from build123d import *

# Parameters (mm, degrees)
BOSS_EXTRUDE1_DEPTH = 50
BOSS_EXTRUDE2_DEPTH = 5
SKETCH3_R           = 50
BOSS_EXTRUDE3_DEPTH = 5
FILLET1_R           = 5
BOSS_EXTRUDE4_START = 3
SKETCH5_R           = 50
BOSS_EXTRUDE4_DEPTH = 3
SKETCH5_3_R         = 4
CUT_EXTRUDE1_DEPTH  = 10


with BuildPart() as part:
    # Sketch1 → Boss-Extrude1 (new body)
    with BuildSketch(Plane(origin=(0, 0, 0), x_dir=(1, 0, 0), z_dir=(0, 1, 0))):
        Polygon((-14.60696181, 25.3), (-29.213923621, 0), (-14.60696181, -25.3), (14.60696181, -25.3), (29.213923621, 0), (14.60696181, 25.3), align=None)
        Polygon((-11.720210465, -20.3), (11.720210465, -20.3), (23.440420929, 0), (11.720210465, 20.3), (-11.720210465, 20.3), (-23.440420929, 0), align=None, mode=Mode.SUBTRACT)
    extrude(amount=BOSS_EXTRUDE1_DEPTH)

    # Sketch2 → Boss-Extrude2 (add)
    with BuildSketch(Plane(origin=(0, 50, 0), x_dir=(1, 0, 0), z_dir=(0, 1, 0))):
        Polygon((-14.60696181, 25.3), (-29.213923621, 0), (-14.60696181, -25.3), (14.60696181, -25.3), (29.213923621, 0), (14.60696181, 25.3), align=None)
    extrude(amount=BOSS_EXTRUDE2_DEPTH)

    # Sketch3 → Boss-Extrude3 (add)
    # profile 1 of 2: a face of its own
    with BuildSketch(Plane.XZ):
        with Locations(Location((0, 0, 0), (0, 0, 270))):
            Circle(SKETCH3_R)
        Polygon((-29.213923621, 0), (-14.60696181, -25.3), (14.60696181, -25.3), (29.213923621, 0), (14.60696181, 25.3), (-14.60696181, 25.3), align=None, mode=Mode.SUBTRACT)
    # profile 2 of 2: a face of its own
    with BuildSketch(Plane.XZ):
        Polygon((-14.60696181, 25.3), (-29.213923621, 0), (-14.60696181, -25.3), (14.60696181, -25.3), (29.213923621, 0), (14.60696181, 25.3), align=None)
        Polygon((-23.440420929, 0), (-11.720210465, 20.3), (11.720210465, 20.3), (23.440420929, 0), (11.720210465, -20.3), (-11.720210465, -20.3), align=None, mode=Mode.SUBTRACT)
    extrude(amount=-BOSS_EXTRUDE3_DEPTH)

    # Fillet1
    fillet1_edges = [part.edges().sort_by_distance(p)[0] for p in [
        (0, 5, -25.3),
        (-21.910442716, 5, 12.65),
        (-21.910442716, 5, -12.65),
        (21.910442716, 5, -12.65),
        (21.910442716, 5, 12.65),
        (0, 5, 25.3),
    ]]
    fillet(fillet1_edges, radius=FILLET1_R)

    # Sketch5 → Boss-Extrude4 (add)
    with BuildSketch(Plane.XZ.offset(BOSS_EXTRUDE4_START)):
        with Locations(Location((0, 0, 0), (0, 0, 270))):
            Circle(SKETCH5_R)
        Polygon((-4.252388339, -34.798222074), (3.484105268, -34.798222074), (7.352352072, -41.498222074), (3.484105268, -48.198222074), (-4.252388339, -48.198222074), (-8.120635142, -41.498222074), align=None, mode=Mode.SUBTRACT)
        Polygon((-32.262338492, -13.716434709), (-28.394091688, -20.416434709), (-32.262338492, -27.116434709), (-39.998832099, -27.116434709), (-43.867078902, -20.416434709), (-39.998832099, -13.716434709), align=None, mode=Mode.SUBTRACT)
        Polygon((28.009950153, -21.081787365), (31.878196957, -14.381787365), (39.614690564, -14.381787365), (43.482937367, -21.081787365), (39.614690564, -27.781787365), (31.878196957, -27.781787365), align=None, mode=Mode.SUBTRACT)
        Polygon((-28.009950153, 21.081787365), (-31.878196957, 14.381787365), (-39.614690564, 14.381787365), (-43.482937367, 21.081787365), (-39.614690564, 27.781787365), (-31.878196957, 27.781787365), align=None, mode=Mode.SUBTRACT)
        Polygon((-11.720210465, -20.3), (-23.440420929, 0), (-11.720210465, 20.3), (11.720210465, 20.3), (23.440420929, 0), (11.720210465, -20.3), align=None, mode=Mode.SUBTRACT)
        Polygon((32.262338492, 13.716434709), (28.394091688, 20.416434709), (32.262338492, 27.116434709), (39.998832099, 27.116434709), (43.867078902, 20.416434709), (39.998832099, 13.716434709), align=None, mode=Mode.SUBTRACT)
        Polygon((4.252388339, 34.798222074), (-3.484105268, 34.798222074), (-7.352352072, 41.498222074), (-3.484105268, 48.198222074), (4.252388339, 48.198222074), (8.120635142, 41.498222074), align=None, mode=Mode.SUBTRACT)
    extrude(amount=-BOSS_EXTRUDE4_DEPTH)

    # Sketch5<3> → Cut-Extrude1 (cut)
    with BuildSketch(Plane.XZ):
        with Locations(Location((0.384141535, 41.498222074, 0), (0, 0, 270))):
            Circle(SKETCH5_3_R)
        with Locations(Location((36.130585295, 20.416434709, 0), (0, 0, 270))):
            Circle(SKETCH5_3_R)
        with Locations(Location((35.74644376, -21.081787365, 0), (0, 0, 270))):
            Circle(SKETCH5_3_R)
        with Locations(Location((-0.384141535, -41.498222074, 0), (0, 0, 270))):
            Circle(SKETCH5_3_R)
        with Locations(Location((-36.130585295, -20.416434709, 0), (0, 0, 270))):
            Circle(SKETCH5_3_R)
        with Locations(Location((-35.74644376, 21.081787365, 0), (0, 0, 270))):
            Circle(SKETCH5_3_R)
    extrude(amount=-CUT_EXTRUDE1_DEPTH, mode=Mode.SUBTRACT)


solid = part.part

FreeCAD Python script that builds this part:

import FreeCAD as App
import Part
import Sketcher

V = App.Vector
Q = App.Units.Quantity


def edges_at(feature, points):
    """Names of the edges that pass closest to the given points."""
    edges = feature.Shape.Edges
    near = lambda p: min(range(len(edges)), key=lambda i: edges[i].distToShape(Part.Vertex(*p))[0])
    return sorted({f"Edge{near(p) + 1}" for p in points})


def add_polygon(sketch, points):
    """Adds a closed chain of lines whose ends are joined by coincident constraints."""
    first, n = sketch.GeometryCount, len(points)
    for a, b in zip(points, points[1:] + points[:1]):
        sketch.addGeometry(Part.LineSegment(App.Vector(*a, 0), App.Vector(*b, 0)), False)
    for i in range(n):
        sketch.addConstraint(Sketcher.Constraint("Coincident", first + i, 2, first + (i + 1) % n, 1))

doc = App.newDocument("Part")
body = doc.addObject("PartDesign::Body", "Body")

# Sketch on XZ plane
sketch1 = doc.addObject("Sketcher::SketchObject", "Sketch")
body.addObject(sketch1)
sketch1.AttachmentSupport = (doc.XZ_Plane, [""])
sketch1.MapMode = "FlatFace"
add_polygon(sketch1, [(-14.606962, -25.3), (-29.213924, 0), (-14.606962, 25.3), (14.606962, 25.3), (29.213924, 0), (14.606962, -25.3)])  # lines 0-5
add_polygon(sketch1, [(11.72021, 20.3), (-11.72021, 20.3), (-23.440421, 0), (-11.72021, -20.3), (11.72021, -20.3), (23.440421, 0)])  # lines 6-11
sketch1.addConstraint([
    Sketcher.Constraint("Horizontal", 2),
    Sketcher.Constraint("Horizontal", 5),
    Sketcher.Constraint("Horizontal", 6),
    Sketcher.Constraint("Horizontal", 9),
    Sketcher.Constraint("Symmetric", 0, 2, 3, 2, -1, 1),
    Sketcher.Constraint("Symmetric", 1, 2, 4, 2, -1, 1),
    Sketcher.Constraint("Symmetric", 6, 2, 9, 2, -1, 1),
    Sketcher.Constraint("Symmetric", 7, 2, 10, 2, -1, 1),
    Sketcher.Constraint("PointOnObject", 0, 2, -1),
    Sketcher.Constraint("PointOnObject", 7, 2, -1),
    Sketcher.Constraint("Parallel", 0, 3),
    Sketcher.Constraint("Parallel", 4, 7),
    Sketcher.Constraint("Parallel", 3, 8),
    Sketcher.Constraint("Parallel", 8, 11),
    Sketcher.Constraint("Vertical", 2, 2, 4, 2),
    Sketcher.Constraint("Angle", 0, Q("120 deg")),
    Sketcher.Constraint("DistanceY", 6, 2, 1, 2, Q("5 mm")),
    Sketcher.Constraint("DistanceY", -1, 1, 1, 2, Q("25.3 mm")),
    Sketcher.Constraint("DistanceX", 6, 2, 6, 1, Q("23.440421 mm")),
    Sketcher.Constraint("DistanceX", 2, 1, 2, 2, Q("29.213924 mm")),
])
pad1 = doc.addObject("PartDesign::Pad", "Pad")
body.addObject(pad1)
pad1.Profile = sketch1
pad1.Length = 50
pad1.Reversed = True

# Sketch on XZ plane
sketch2 = doc.addObject("Sketcher::SketchObject", "Sketch001")
body.addObject(sketch2)
sketch2.AttachmentSupport = (doc.XZ_Plane, [""])
sketch2.MapMode = "FlatFace"
sketch2.AttachmentOffset = App.Placement(V(0, 0, -50), App.Rotation())
add_polygon(sketch2, [(-14.606962, -25.3), (-29.213924, 0), (-14.606962, 25.3), (14.606962, 25.3), (29.213924, 0), (14.606962, -25.3)])  # lines 0-5
sketch2.addConstraint([
    Sketcher.Constraint("Horizontal", 2),
    Sketcher.Constraint("Horizontal", 5),
    Sketcher.Constraint("Symmetric", 0, 2, 3, 2, -1, 1),
    Sketcher.Constraint("Symmetric", 1, 2, 4, 2, -1, 1),
    Sketcher.Constraint("PointOnObject", 0, 2, -1),
    Sketcher.Constraint("Parallel", 0, 3),
    Sketcher.Constraint("Vertical", 2, 2, 4, 2),
    Sketcher.Constraint("Angle", 0, Q("120 deg")),
    Sketcher.Constraint("DistanceY", -1, 1, 1, 2, Q("25.3 mm")),
    Sketcher.Constraint("DistanceX", 2, 1, 2, 2, Q("29.213924 mm")),
])
pad2 = doc.addObject("PartDesign::Pad", "Pad001")
body.addObject(pad2)
pad2.Profile = sketch2
pad2.Length = 5
pad2.Reversed = True

# Sketch on XZ plane
sketch3 = doc.addObject("Sketcher::SketchObject", "Sketch002")
body.addObject(sketch3)
sketch3.AttachmentSupport = (doc.XZ_Plane, [""])
sketch3.MapMode = "FlatFace"
sketch3.addGeometry(Part.Circle(V(0, 0, 0), V(0, 0, 1), 50), False)  # 0
add_polygon(sketch3, [(-11.72021, -20.3), (-23.440421, 0), (-11.72021, 20.3), (11.72021, 20.3), (23.440421, 0), (11.72021, -20.3)])  # lines 1-6
sketch3.addConstraint([
    Sketcher.Constraint("Horizontal", 3),
    Sketcher.Constraint("Horizontal", 6),
    Sketcher.Constraint("Coincident", 0, 3, -1, 1),
    Sketcher.Constraint("Symmetric", 1, 2, 4, 2, -1, 1),
    Sketcher.Constraint("Symmetric", 2, 2, 5, 2, -1, 1),
    Sketcher.Constraint("PointOnObject", 1, 2, -1),
    Sketcher.Constraint("Parallel", 1, 4),
    Sketcher.Constraint("Vertical", 3, 2, 5, 2),
    Sketcher.Constraint("Diameter", 0, Q("100 mm")),
    Sketcher.Constraint("Angle", 1, Q("120 deg")),
    Sketcher.Constraint("DistanceY", -1, 1, 2, 2, Q("20.3 mm")),
    Sketcher.Constraint("DistanceX", 3, 1, 3, 2, Q("23.440421 mm")),
])
pad3 = doc.addObject("PartDesign::Pad", "Pad002")
body.addObject(pad3)
pad3.Profile = sketch3
pad3.Length = 5
pad3.Reversed = True
doc.recompute()

fillet = doc.addObject("PartDesign::Fillet", "Fillet")
body.addObject(fillet)
fillet.Base = (pad3, edges_at(pad3, [
    (0, 5, -25.3),
    (-21.91, 5, 12.65),
    (-21.91, 5, -12.65),
    (21.91, 5, -12.65),
    (21.91, 5, 12.65),
    (0, 5, 25.3),
]))
fillet.Radius = 5

# Sketch on XZ plane
sketch4 = doc.addObject("Sketcher::SketchObject", "Sketch003")
body.addObject(sketch4)
sketch4.AttachmentSupport = (doc.XZ_Plane, [""])
sketch4.MapMode = "FlatFace"
sketch4.AttachmentOffset = App.Placement(V(0, 0, 3), App.Rotation())
sketch4.addGeometry(Part.Circle(V(0, 0, 0), V(0, 0, 1), 50), False)  # 0
add_polygon(sketch4, [(-31.878197, 27.781787), (-28.00995, 21.081787), (-31.878197, 14.381787), (-39.614691, 14.381787), (-43.482937, 21.081787), (-39.614691, 27.781787)])  # lines 1-6
add_polygon(sketch4, [(-39.998832, -13.716435), (-32.262338, -13.716435), (-28.394092, -20.416435), (-32.262338, -27.116435), (-39.998832, -27.116435), (-43.867079, -20.416435)])  # lines 7-12
add_polygon(sketch4, [(11.72021, -20.3), (-11.72021, -20.3), (-23.440421, 0), (-11.72021, 20.3), (11.72021, 20.3), (23.440421, 0)])  # lines 13-18
add_polygon(sketch4, [(-8.120635, -41.498222), (-4.252388, -34.798222), (3.484105, -34.798222), (7.352352, -41.498222), (3.484105, -48.198222), (-4.252388, -48.198222)])  # lines 19-24
add_polygon(sketch4, [(8.120635, 41.498222), (4.252388, 34.798222), (-3.484105, 34.798222), (-7.352352, 41.498222), (-3.484105, 48.198222), (4.252388, 48.198222)])  # lines 25-30
add_polygon(sketch4, [(39.998832, 13.716435), (32.262338, 13.716435), (28.394092, 20.416435), (32.262338, 27.116435), (39.998832, 27.116435), (43.867079, 20.416435)])  # lines 31-36
add_polygon(sketch4, [(31.878197, -27.781787), (28.00995, -21.081787), (31.878197, -14.381787), (39.614691, -14.381787), (43.482937, -21.081787), (39.614691, -27.781787)])  # lines 37-42
sketch4.addConstraint([
    Sketcher.Constraint("Horizontal", 3),
    Sketcher.Constraint("Horizontal", 6),
    Sketcher.Constraint("Horizontal", 7),
    Sketcher.Constraint("Horizontal", 10),
    Sketcher.Constraint("Horizontal", 13),
    Sketcher.Constraint("Horizontal", 16),
    Sketcher.Constraint("Horizontal", 20),
    Sketcher.Constraint("Horizontal", 23),
    Sketcher.Constraint("Horizontal", 26),
    Sketcher.Constraint("Horizontal", 29),
    Sketcher.Constraint("Horizontal", 31),
    Sketcher.Constraint("Horizontal", 34),
    Sketcher.Constraint("Horizontal", 39),
    Sketcher.Constraint("Horizontal", 42),
    Sketcher.Constraint("Coincident", 0, 3, -1, 1),
    Sketcher.Constraint("Symmetric", 13, 2, 16, 2, -1, 1),
    Sketcher.Constraint("Symmetric", 14, 2, 17, 2, -1, 1),
    Sketcher.Constraint("Symmetric", 19, 2, 25, 2, -1, 1),
    Sketcher.Constraint("Symmetric", 21, 2, 27, 2, -1, 1),
    Sketcher.Constraint("Symmetric", 22, 2, 28, 2, -1, 1),
    Sketcher.Constraint("Symmetric", 24, 2, 30, 2, -1, 1),
    Sketcher.Constraint("Symmetric", 7, 2, 31, 2, -1, 1),
    Sketcher.Constraint("Symmetric", 8, 2, 32, 2, -1, 1),
    Sketcher.Constraint("Symmetric", 9, 2, 33, 2, -1, 1),
    Sketcher.Constraint("Symmetric", 11, 2, 35, 2, -1, 1),
    Sketcher.Constraint("Symmetric", 1, 2, 37, 2, -1, 1),
    Sketcher.Constraint("Symmetric", 2, 2, 38, 2, -1, 1),
    Sketcher.Constraint("Symmetric", 4, 2, 40, 2, -1, 1),
    Sketcher.Constraint("Symmetric", 5, 2, 41, 2, -1, 1),
    Sketcher.Constraint("PointOnObject", 14, 2, -1),
    Sketcher.Constraint("Parallel", 1, 4),
    Sketcher.Constraint("Parallel", 2, 5),
    Sketcher.Constraint("Parallel", 4, 8),
    Sketcher.Constraint("Parallel", 5, 9),
    Sketcher.Constraint("Parallel", 8, 11),
    Sketcher.Constraint("Parallel", 9, 12),
    Sketcher.Constraint("Parallel", 11, 14),
    Sketcher.Constraint("Parallel", 12, 15),
    Sketcher.Constraint("Parallel", 15, 18),
    Sketcher.Constraint("Parallel", 18, 19),
    Sketcher.Constraint("Parallel", 17, 21),
    Sketcher.Constraint("Parallel", 19, 22),
    Sketcher.Constraint("Parallel", 21, 24),
    Sketcher.Constraint("Parallel", 24, 27),
    Sketcher.Constraint("Parallel", 27, 30),
    Sketcher.Constraint("Parallel", 32, 35),
    Sketcher.Constraint("Parallel", 33, 36),
    Sketcher.Constraint("Parallel", 35, 37),
    Sketcher.Constraint("Parallel", 37, 40),
    Sketcher.Constraint("Horizontal", 1, 2, 4, 2),
    Sketcher.Constraint("Horizontal", 8, 2, 11, 2),
    Sketcher.Constraint("Horizontal", 21, 2, 24, 2),
    Sketcher.Constraint("Vertical", 3, 2, 5, 2),
    Sketcher.Constraint("Vertical", 2, 2, 6, 2),
    Sketcher.Constraint("Vertical", 7, 2, 9, 2),
    Sketcher.Constraint("Vertical", 20, 2, 22, 2),
    Sketcher.Constraint("Equal", 6, 7),
    Sketcher.Constraint("Equal", 10, 20),
    Sketcher.Constraint("Equal", 5, 8),
    Sketcher.Constraint("Equal", 12, 19),
    Sketcher.Constraint("Diameter", 0, Q("100 mm")),
    Sketcher.Constraint("Angle", 1, Q("-60 deg")),
    Sketcher.Constraint("DistanceY", 13, 2, -1, 1, Q("20.3 mm")),
    Sketcher.Constraint("DistanceY", 2, 2, 1, 2, Q("6.7 mm")),
    Sketcher.Constraint("DistanceX", 13, 2, 13, 1, Q("23.440421 mm")),
    Sketcher.Constraint("DistanceX", 4, 2, 7, 2, Q("11.220599 mm")),
    Sketcher.Constraint("DistanceX", 19, 2, 18, 2, Q("15.972599 mm")),
    Sketcher.Constraint("DistanceX", 21, 2, 37, 2, Q("20.657598 mm")),
    Sketcher.Constraint("DistanceX", 3, 2, 3, 1, Q("7.736494 mm")),
    Sketcher.Constraint("DistanceY", -1, 1, 1, 2, Q("21.081787 mm")),
    Sketcher.Constraint("DistanceY", 7, 2, -1, 1, Q("13.716435 mm")),
    Sketcher.Constraint("DistanceY", 19, 2, -1, 1, Q("34.798222 mm")),
])
pad4 = doc.addObject("PartDesign::Pad", "Pad003")
body.addObject(pad4)
pad4.Profile = sketch4
pad4.Length = 3
pad4.Reversed = True

# Sketch on XZ plane
sketch5 = doc.addObject("Sketcher::SketchObject", "Sketch004")
body.addObject(sketch5)
sketch5.AttachmentSupport = (doc.XZ_Plane, [""])
sketch5.MapMode = "FlatFace"
sketch5.addGeometry([
    Part.Circle(V(0.384142, 41.498222, 0), V(0, 0, 1), 4),  # 0
    Part.Circle(V(36.130585, 20.416435, 0), V(0, 0, 1), 4),  # 1
    Part.Circle(V(35.746444, -21.081787, 0), V(0, 0, 1), 4),  # 2
    Part.Circle(V(-0.384142, -41.498222, 0), V(0, 0, 1), 4),  # 3
    Part.Circle(V(-36.130585, -20.416435, 0), V(0, 0, 1), 4),  # 4
    Part.Circle(V(-35.746444, 21.081787, 0), V(0, 0, 1), 4),  # 5
], False)
sketch5.addConstraint([
    Sketcher.Constraint("Equal", 0, 1),
    Sketcher.Constraint("Equal", 1, 2),
    Sketcher.Constraint("Equal", 2, 3),
    Sketcher.Constraint("Equal", 3, 4),
    Sketcher.Constraint("Equal", 4, 5),
    Sketcher.Constraint("Symmetric", 0, 3, 3, 3, -1, 1),
    Sketcher.Constraint("Symmetric", 1, 3, 4, 3, -1, 1),
    Sketcher.Constraint("Symmetric", 2, 3, 5, 3, -1, 1),
    Sketcher.Constraint("Diameter", 0, Q("8 mm")),
    Sketcher.Constraint("DistanceX", -1, 1, 0, 3, Q("0.384142 mm")),
    Sketcher.Constraint("DistanceX", 2, 3, 1, 3, Q("0.384142 mm")),
    Sketcher.Constraint("DistanceY", 2, 3, 0, 3, Q("62.580009 mm")),
    Sketcher.Constraint("DistanceX", 4, 3, 2, 3, Q("71.877029 mm")),
    Sketcher.Constraint("DistanceY", 4, 3, 1, 3, Q("40.832869 mm")),
    Sketcher.Constraint("DistanceY", -1, 1, 0, 3, Q("41.498222 mm")),
])
pocket1 = doc.addObject("PartDesign::Pocket", "Pocket")
body.addObject(pocket1)
pocket1.Profile = sketch5
pocket1.Length = 10

doc.recompute()
